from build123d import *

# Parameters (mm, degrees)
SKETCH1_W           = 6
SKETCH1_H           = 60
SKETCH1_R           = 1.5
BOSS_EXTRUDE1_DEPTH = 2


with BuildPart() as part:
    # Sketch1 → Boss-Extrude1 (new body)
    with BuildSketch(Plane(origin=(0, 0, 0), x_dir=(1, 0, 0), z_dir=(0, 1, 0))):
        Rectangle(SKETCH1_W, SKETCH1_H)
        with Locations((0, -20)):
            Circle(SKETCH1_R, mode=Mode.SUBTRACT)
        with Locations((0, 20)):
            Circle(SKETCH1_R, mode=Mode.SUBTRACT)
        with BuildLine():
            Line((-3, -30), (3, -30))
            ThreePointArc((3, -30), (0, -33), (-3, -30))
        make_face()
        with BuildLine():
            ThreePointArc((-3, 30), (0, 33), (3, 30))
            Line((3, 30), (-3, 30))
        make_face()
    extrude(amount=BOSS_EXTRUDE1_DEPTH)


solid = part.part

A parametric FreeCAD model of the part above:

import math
import FreeCAD as App
import Part
import Sketcher
Q = App.Units.Quantity

doc = App.newDocument("Part")
body = doc.addObject("PartDesign::Body", "Body")

# Sketch on XZ plane
sketch1 = body.newObject("Sketcher::SketchObject", "Sketch")
sketch1.AttachmentSupport = (doc.getObject("XZ_Plane"), [""])
sketch1.MapMode = "FlatFace"
sketch1.addGeometry(Part.LineSegment(App.Vector(-3, -30, 0), App.Vector(-3, 30, 0)), False)
sketch1.addGeometry(Part.ArcOfCircle(Part.Circle(App.Vector(0, 30, 0), App.Vector(0, 0, 1), 3), math.radians(0), math.radians(180)), False)
sketch1.addGeometry(Part.LineSegment(App.Vector(3, 30, 0), App.Vector(3, -30, 0)), False)
sketch1.addGeometry(Part.ArcOfCircle(Part.Circle(App.Vector(0, -30, 0), App.Vector(0, 0, 1), 3), math.radians(180), math.radians(360)), False)
sketch1.addGeometry(Part.Circle(App.Vector(0, 20, 0), App.Vector(0, 0, 1), 1.5), False)
sketch1.addGeometry(Part.Circle(App.Vector(0, -20, 0), App.Vector(0, 0, 1), 1.5), False)
sketch1.addConstraint(Sketcher.Constraint("Tangent", 0, 2, 1, 2))
sketch1.addConstraint(Sketcher.Constraint("Tangent", 1, 1, 2, 1))
sketch1.addConstraint(Sketcher.Constraint("Tangent", 2, 2, 3, 2))
sketch1.addConstraint(Sketcher.Constraint("Tangent", 3, 1, 0, 1))
sketch1.addConstraint(Sketcher.Constraint("Vertical", 0))
sketch1.addConstraint(Sketcher.Constraint("Vertical", 2))
sketch1.addConstraint(Sketcher.Constraint("Equal", 4, 5))
sketch1.addConstraint(Sketcher.Constraint("Symmetric", 1, 3, 3, 3, -1, 1))
sketch1.addConstraint(Sketcher.Constraint("Symmetric", 4, 3, 5, 3, -1, 1))
sketch1.addConstraint(Sketcher.Constraint("PointOnObject", 4, 3, -2))
sketch1.addConstraint(Sketcher.Constraint("Diameter", 4, Q("3 mm")))
sketch1.addConstraint(Sketcher.Constraint("Radius", 1, Q("3 mm")))
sketch1.addConstraint(Sketcher.Constraint("DistanceY", 0, 1, 0, 2, Q("60 mm")))
sketch1.addConstraint(Sketcher.Constraint("DistanceY", -1, 1, 4, 3, Q("20 mm")))
pad1 = body.newObject("PartDesign::Pad", "Pad")
pad1.Profile = sketch1
pad1.Length = 2
pad1.Reversed = True

doc.recompute()
